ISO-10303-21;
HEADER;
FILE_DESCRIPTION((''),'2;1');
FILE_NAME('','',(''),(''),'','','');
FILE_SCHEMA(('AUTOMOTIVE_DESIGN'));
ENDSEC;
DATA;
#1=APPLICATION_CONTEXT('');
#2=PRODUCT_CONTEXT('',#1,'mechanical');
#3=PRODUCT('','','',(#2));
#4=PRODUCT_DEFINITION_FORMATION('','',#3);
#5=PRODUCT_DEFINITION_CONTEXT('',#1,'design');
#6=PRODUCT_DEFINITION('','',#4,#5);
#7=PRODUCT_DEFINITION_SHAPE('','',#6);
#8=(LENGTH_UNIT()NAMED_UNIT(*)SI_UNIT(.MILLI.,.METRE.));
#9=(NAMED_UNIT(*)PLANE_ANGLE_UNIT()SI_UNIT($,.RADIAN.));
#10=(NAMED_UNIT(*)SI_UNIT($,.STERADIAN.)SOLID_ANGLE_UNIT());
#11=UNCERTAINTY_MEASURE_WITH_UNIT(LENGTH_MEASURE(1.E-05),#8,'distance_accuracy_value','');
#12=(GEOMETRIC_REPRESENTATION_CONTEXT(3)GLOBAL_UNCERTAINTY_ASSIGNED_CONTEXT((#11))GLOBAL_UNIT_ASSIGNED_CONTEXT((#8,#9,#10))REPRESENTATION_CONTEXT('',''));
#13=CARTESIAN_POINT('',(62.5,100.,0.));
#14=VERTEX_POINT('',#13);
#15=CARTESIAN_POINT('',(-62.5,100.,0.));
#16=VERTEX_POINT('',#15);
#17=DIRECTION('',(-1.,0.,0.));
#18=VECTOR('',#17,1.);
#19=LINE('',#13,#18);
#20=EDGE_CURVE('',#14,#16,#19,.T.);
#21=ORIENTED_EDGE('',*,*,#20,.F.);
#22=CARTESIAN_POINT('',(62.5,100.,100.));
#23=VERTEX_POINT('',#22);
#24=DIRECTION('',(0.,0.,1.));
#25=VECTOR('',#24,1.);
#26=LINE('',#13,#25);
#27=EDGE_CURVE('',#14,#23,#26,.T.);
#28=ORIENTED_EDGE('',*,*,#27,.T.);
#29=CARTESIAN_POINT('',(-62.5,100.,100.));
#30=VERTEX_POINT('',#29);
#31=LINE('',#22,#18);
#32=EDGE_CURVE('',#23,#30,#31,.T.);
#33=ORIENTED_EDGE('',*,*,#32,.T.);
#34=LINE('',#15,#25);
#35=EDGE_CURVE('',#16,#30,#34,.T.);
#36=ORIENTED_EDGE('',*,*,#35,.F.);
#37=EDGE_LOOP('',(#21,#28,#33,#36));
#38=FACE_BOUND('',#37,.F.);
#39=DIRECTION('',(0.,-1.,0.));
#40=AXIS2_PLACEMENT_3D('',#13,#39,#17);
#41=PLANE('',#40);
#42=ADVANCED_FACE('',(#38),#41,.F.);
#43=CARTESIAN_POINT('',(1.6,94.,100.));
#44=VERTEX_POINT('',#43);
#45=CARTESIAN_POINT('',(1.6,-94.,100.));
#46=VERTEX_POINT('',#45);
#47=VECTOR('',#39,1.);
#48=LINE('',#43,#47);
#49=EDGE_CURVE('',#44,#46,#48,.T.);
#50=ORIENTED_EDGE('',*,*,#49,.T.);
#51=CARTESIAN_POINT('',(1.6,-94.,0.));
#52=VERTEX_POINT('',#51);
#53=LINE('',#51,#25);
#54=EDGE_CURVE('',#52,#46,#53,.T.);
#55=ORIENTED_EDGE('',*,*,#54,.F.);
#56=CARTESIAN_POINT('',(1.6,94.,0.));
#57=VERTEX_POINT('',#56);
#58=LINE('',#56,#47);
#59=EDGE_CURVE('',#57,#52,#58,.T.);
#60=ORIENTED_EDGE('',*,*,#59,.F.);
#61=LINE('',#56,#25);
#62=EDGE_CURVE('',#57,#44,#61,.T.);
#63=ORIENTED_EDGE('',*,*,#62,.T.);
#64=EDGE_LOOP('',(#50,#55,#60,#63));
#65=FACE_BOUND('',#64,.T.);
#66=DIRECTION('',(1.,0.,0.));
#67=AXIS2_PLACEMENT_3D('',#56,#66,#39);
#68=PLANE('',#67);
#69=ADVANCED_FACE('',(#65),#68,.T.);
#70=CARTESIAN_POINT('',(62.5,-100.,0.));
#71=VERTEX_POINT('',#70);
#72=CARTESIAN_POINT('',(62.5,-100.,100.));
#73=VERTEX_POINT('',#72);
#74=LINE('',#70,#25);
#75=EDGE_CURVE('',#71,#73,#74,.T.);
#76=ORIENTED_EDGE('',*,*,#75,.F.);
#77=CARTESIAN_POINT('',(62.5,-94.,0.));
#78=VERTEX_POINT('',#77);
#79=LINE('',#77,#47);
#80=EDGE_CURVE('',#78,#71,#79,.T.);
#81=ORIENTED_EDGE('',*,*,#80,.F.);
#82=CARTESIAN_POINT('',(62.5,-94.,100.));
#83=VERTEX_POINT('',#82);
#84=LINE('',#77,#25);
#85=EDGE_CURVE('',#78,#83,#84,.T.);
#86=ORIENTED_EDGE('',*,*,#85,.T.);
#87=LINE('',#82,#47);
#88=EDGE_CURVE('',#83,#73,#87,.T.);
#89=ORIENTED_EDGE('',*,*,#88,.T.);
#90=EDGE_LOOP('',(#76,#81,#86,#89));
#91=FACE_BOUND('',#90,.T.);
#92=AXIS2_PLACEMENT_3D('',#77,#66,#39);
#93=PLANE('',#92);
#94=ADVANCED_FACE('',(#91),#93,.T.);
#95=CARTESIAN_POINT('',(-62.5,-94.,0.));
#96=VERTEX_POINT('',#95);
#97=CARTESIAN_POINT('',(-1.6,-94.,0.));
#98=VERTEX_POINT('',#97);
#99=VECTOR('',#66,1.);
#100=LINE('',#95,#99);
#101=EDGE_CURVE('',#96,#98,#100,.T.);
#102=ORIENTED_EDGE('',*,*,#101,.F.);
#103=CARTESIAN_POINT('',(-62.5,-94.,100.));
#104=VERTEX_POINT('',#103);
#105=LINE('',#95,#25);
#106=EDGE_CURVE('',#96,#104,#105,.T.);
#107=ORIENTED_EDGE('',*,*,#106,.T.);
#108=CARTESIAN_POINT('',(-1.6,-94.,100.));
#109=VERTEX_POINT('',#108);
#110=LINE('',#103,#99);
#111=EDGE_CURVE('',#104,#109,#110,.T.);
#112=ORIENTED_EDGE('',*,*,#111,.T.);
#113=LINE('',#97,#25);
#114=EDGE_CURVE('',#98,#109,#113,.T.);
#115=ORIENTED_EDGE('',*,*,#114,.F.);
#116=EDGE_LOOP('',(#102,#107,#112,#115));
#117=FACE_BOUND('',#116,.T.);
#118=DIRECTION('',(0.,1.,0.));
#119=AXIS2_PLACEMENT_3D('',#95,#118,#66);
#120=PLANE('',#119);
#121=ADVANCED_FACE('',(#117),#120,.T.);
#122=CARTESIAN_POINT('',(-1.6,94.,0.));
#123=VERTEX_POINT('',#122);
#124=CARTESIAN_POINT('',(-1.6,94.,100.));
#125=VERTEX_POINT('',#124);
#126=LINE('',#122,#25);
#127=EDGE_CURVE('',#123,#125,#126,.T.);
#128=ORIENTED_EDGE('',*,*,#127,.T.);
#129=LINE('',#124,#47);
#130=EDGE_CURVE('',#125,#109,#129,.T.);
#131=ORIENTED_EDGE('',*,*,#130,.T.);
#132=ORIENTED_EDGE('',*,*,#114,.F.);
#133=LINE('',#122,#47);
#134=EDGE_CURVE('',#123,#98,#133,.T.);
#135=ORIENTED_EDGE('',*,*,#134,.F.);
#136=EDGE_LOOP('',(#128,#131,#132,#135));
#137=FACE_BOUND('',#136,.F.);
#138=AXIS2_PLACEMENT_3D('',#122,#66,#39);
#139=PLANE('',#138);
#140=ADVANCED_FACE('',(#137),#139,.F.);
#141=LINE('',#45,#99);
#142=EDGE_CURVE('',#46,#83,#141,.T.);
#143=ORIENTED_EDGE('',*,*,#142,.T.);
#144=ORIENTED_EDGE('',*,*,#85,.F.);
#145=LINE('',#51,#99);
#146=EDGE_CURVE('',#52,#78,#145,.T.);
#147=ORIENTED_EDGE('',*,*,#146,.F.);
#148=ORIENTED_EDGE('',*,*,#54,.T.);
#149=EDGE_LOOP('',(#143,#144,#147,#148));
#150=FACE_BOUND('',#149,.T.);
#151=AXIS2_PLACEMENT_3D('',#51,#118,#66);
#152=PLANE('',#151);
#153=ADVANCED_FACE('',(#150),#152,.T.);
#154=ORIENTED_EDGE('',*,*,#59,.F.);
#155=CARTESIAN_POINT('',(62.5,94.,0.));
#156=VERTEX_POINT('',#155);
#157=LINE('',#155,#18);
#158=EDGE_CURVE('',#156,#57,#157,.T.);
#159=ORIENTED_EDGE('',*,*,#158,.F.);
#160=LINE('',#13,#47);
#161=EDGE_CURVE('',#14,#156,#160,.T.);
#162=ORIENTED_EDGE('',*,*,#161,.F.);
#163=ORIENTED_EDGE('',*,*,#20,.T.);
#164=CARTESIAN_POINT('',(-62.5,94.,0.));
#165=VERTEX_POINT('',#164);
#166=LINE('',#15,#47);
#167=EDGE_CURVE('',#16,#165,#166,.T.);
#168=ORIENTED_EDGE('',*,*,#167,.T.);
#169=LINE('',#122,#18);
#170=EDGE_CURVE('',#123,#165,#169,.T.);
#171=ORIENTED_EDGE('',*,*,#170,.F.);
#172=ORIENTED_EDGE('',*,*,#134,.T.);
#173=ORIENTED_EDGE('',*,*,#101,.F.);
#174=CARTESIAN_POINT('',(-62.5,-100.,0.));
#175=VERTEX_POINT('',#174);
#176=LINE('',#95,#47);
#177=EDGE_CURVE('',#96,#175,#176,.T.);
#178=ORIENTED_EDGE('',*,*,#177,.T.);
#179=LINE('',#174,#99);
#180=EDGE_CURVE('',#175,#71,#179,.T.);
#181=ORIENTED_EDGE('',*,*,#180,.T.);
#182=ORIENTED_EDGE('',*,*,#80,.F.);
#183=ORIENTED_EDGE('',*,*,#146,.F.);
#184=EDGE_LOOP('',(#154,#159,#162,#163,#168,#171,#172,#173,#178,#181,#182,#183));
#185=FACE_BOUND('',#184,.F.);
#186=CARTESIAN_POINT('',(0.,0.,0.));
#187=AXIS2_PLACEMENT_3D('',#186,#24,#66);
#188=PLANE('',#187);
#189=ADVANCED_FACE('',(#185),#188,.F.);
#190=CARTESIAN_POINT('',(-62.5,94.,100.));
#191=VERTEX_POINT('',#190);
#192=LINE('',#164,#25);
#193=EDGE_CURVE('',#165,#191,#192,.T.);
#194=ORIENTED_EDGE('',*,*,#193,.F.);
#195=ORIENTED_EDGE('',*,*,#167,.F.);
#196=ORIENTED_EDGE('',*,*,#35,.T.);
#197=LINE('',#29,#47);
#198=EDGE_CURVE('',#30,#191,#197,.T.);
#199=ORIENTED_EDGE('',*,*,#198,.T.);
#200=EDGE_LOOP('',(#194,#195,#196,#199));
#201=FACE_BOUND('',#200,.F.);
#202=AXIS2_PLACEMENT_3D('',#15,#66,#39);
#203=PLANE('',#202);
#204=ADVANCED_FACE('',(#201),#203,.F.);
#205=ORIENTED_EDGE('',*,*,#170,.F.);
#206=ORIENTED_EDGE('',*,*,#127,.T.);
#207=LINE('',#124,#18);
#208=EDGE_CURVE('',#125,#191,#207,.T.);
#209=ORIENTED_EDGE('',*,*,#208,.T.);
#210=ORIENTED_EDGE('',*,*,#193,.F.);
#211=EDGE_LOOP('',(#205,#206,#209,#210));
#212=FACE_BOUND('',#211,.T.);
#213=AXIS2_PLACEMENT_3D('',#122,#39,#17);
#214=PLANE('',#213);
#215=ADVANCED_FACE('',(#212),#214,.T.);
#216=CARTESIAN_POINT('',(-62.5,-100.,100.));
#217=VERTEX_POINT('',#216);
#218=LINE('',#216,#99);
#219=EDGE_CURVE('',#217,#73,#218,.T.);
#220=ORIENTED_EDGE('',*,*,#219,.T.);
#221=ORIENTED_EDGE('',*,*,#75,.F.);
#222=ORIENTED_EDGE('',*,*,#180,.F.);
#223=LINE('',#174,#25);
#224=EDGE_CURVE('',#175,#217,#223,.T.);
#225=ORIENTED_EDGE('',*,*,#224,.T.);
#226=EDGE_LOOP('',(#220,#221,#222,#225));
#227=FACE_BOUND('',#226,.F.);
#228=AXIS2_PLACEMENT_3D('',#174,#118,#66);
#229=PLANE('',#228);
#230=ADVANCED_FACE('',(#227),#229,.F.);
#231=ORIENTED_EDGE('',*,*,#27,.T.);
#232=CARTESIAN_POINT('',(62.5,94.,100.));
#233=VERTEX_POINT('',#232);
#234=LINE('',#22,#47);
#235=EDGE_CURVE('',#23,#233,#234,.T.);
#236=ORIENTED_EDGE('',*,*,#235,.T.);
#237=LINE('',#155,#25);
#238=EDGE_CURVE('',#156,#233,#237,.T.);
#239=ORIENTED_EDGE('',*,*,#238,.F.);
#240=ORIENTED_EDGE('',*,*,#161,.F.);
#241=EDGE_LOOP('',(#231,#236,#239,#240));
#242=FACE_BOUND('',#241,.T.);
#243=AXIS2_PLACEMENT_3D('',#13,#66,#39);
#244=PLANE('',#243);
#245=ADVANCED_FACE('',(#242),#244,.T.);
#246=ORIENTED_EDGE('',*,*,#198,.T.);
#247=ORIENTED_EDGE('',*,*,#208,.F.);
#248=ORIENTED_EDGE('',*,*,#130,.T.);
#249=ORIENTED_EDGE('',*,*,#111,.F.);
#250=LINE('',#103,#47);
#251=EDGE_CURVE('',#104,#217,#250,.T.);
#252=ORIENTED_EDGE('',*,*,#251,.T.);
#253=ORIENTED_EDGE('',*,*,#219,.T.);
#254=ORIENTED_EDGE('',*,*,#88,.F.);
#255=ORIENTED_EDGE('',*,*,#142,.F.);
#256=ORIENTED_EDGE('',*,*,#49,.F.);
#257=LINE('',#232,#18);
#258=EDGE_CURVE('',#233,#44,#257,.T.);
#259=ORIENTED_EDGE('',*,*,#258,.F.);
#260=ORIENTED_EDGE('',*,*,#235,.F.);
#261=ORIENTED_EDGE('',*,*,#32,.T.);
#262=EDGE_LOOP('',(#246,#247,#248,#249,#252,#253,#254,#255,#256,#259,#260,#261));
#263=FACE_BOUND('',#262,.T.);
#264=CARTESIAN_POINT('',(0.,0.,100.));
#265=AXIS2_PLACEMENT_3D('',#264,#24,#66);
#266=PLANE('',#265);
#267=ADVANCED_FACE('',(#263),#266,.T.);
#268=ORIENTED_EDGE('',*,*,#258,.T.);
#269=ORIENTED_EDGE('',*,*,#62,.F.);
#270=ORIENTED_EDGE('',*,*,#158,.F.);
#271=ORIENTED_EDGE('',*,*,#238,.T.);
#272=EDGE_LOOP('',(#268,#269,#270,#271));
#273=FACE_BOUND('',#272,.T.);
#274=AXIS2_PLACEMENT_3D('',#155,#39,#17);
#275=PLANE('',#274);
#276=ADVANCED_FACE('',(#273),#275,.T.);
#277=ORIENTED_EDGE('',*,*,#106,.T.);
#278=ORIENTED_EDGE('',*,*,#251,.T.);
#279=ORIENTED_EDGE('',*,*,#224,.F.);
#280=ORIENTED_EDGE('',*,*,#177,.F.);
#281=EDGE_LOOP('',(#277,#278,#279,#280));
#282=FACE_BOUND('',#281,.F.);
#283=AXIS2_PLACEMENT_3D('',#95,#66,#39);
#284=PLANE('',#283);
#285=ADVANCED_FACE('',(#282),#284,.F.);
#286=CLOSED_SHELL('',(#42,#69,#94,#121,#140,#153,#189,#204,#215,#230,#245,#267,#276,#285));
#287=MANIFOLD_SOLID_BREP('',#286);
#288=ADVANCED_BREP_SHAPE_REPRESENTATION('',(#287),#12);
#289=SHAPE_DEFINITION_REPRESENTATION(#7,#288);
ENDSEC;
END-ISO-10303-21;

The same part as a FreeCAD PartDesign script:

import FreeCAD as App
import Part
import Sketcher
from FreeCAD import Vector


def add_polygon(sketch, points):
    """Adds a closed chain of lines whose ends are joined by coincident constraints."""
    first, n = sketch.GeometryCount, len(points)
    for a, b in zip(points, points[1:] + points[:1]):
        sketch.addGeometry(Part.LineSegment(App.Vector(*a, 0), App.Vector(*b, 0)), False)
    for i in range(n):
        sketch.addConstraint(Sketcher.Constraint("Coincident", first + i, 2, first + (i + 1) % n, 1))

doc = App.newDocument("Part")
body = doc.addObject("PartDesign::Body", "Body")

# Sketch on XY plane
sketch1 = body.newObject("Sketcher::SketchObject", "Sketch")
sketch1.AttachmentSupport = (doc.getObject("XY_Plane"), [""])
sketch1.MapMode = "FlatFace"
add_polygon(sketch1, [(62, 94), (62, 100), (-62, 100), (-62, 94), (-2, 94), (-2, -94), (-62, -94), (-62, -100), (62, -100), (62, -94), (2, -94), (2, 94)])  # lines 0-11
sketch1.addConstraint([
    Sketcher.Constraint("Vertical", 0),
    Sketcher.Constraint("Horizontal", 1),
    Sketcher.Constraint("Vertical", 2),
    Sketcher.Constraint("Horizontal", 3),
    Sketcher.Constraint("Vertical", 4),
    Sketcher.Constraint("Horizontal", 5),
    Sketcher.Constraint("Vertical", 6),
    Sketcher.Constraint("Horizontal", 7),
    Sketcher.Constraint("Vertical", 8),
    Sketcher.Constraint("Horizontal", 9),
    Sketcher.Constraint("Vertical", 10),
    Sketcher.Constraint("Horizontal", 11),
    Sketcher.Constraint("Symmetric", 0, 2, 6, 2, -1, 1),
    Sketcher.Constraint("Symmetric", 2, 2, 8, 2, -1, 1),
    Sketcher.Constraint("Symmetric", 4, 2, 10, 2, -1, 1),
    Sketcher.Constraint("Symmetric", 5, 2, 8, 2, -2),
    Sketcher.Constraint("DistanceX", 1, 2, 1, 1, 125.0),
    Sketcher.Constraint("DistanceY", 6, 2, 1, 2, 200.0),
    Sketcher.Constraint("DistanceY", 0, 1, 0, 2, 6.0),
    Sketcher.Constraint("DistanceX", 3, 1, 3, 2, 60.9),
])
pad1 = body.newObject("PartDesign::Pad", "Pad")
pad1.Profile = sketch1
pad1.Length = 100

doc.recompute()
